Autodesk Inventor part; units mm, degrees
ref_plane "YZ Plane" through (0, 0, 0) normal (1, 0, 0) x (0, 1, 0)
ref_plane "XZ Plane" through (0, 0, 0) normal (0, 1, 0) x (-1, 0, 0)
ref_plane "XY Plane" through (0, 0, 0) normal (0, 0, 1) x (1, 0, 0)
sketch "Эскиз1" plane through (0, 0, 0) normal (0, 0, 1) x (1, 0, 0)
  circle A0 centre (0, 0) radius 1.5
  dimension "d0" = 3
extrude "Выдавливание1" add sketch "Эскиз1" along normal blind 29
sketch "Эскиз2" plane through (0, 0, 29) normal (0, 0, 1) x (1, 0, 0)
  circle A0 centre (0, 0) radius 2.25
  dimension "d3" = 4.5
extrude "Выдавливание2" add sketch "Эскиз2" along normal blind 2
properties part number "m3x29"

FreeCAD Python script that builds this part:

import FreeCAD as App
import Part
import Sketcher

V = App.Vector
Q = App.Units.Quantity

doc = App.newDocument("Part")
params = doc.addObject("Spreadsheet::Sheet", "Params")
for row, (alias, value) in enumerate([
    ("sketch1_diameter", "3 mm"),
    ("pad1_length", "29 mm"),
    ("sketch2_diameter", "4.5 mm"),
    ("pad2_length", "2 mm"),
], start=1):
    params.set(f"A{row}", alias)
    params.set(f"B{row}", "=" + value)
    params.setAlias(f"B{row}", alias)

body = doc.addObject("PartDesign::Body", "Body")

sketch1 = body.newObject("Sketcher::SketchObject", "Sketch")
sketch1.AttachmentSupport = (doc.getObject("XY_Plane"), [""])
sketch1.MapMode = "FlatFace"
sketch1.addGeometry(Part.Circle(V(0, 0, 0), V(0, 0, 1), 1.5), False)
sketch1.addConstraint([
    Sketcher.Constraint("Coincident", 0, 3, -1, 1),
    Sketcher.Constraint("Diameter", 0, Q("3 mm")),
])
sketch1.setExpression("Constraints[1]", "Params.sketch1_diameter")
pad1 = body.newObject("PartDesign::Pad", "Pad")
pad1.Profile = sketch1
pad1.setExpression("Length", "Params.pad1_length")

sketch2 = body.newObject("Sketcher::SketchObject", "Sketch001")
sketch2.AttachmentSupport = (doc.getObject("XY_Plane"), [""])
sketch2.MapMode = "FlatFace"
sketch2.AttachmentOffset = App.Placement(V(0, 0, 29), App.Rotation())
sketch2.addGeometry(Part.Circle(V(0, 0, 0), V(0, 0, 1), 2.25), False)
sketch2.addConstraint([
    Sketcher.Constraint("Coincident", 0, 3, -1, 1),
    Sketcher.Constraint("Diameter", 0, Q("4.5 mm")),
])
sketch2.setExpression("Constraints[1]", "Params.sketch2_diameter")
pad2 = body.newObject("PartDesign::Pad", "Pad001")
pad2.Profile = sketch2
pad2.setExpression("Length", "Params.pad2_length")

doc.recompute()
